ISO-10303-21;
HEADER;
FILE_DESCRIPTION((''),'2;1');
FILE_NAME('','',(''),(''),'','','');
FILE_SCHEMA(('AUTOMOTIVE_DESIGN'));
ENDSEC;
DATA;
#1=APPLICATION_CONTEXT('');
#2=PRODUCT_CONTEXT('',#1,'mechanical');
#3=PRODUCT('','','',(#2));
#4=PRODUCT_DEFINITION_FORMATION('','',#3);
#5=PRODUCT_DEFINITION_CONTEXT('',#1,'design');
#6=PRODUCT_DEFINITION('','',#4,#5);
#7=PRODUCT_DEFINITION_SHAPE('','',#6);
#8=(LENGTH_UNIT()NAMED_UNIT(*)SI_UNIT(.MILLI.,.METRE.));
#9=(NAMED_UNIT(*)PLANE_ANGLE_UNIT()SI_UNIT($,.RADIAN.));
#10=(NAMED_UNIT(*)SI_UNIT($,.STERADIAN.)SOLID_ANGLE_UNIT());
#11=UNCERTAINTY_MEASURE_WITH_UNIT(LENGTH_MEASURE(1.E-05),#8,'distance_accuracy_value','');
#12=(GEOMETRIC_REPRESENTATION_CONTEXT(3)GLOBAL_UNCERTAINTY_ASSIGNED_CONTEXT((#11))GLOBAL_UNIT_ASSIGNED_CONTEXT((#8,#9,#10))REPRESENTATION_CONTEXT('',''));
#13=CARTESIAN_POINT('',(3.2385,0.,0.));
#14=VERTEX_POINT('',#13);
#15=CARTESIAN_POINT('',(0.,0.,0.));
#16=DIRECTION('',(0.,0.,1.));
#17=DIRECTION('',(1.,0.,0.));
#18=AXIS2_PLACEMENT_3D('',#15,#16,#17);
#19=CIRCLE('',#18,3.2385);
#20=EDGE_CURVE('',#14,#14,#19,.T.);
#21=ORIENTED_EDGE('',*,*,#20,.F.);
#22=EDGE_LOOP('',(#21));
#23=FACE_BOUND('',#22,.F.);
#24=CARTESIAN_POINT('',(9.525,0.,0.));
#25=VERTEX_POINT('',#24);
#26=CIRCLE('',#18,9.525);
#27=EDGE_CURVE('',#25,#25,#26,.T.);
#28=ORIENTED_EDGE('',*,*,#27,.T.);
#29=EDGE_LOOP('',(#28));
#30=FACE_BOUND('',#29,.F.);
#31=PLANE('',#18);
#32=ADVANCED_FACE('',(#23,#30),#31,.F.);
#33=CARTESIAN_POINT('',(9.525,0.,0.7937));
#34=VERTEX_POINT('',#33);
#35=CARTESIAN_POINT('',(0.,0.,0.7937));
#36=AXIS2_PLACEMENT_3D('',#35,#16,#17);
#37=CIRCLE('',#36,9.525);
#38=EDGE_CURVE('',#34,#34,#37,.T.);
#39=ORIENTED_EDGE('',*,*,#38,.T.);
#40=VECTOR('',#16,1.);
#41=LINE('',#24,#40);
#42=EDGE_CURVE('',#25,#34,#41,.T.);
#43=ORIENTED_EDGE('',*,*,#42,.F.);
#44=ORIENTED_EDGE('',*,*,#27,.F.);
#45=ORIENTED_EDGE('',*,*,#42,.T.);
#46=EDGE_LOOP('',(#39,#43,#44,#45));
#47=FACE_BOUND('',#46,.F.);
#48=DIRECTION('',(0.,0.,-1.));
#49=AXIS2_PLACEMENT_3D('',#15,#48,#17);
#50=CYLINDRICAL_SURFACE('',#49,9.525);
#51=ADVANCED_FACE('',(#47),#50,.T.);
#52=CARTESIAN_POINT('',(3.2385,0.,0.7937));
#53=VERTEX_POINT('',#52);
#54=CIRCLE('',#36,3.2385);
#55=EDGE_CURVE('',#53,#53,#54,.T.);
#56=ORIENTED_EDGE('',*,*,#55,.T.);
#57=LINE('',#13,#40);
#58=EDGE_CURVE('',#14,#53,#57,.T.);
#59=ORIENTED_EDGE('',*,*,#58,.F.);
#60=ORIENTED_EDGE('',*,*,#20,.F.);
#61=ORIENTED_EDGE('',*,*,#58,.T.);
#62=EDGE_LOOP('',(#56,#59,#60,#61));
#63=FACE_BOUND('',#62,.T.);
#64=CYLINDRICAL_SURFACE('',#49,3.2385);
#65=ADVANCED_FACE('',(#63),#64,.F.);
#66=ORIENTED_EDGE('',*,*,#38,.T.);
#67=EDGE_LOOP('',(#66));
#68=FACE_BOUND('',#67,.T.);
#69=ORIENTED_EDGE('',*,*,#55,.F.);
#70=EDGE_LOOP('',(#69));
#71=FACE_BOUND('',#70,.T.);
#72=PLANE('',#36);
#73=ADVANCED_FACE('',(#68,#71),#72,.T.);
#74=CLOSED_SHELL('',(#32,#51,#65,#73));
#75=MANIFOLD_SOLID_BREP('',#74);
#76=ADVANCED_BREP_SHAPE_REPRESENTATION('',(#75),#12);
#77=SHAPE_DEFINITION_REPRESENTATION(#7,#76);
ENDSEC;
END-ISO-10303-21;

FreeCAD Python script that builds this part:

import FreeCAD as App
import Part
import Sketcher
from FreeCAD import Vector
Q = App.Units.Quantity

doc = App.newDocument("Part")
params = doc.addObject("Spreadsheet::Sheet", "Params")
for row, (alias, value) in enumerate([
    ("sketch1_diameter", "0.75 in"),
    ("sketch1_diameter2", "0.255 in"),
    ("pad1_length", "0.031248 in"),
], start=1):
    params.set(f"A{row}", alias)
    params.set(f"B{row}", "=" + value)
    params.setAlias(f"B{row}", alias)

body = doc.addObject("PartDesign::Body", "Body")

sketch1 = doc.addObject("Sketcher::SketchObject", "Sketch")
body.addObject(sketch1)
sketch1.AttachmentSupport = (doc.XY_Plane, [""])
sketch1.MapMode = "FlatFace"
sketch1.addGeometry([
    Part.Circle(Vector(0, 0, 0), Vector(0, 0, 1), 9.5),
    Part.Circle(Vector(0, 0, 0), Vector(0, 0, 1), 3.2),
], False)
sketch1.addConstraint([
    Sketcher.Constraint("Coincident", 0, 3, -1, 1),
    Sketcher.Constraint("Coincident", 1, 3, -1, 1),
    Sketcher.Constraint("Diameter", 0, Q("0.75 in")),
    Sketcher.Constraint("Diameter", 1, Q("0.255 in")),
])
sketch1.setExpression("Constraints[2]", "Params.sketch1_diameter")
sketch1.setExpression("Constraints[3]", "Params.sketch1_diameter2")
pad1 = doc.addObject("PartDesign::Pad", "Pad")
body.addObject(pad1)
pad1.Profile = sketch1
pad1.setExpression("Length", "Params.pad1_length")

doc.recompute()
